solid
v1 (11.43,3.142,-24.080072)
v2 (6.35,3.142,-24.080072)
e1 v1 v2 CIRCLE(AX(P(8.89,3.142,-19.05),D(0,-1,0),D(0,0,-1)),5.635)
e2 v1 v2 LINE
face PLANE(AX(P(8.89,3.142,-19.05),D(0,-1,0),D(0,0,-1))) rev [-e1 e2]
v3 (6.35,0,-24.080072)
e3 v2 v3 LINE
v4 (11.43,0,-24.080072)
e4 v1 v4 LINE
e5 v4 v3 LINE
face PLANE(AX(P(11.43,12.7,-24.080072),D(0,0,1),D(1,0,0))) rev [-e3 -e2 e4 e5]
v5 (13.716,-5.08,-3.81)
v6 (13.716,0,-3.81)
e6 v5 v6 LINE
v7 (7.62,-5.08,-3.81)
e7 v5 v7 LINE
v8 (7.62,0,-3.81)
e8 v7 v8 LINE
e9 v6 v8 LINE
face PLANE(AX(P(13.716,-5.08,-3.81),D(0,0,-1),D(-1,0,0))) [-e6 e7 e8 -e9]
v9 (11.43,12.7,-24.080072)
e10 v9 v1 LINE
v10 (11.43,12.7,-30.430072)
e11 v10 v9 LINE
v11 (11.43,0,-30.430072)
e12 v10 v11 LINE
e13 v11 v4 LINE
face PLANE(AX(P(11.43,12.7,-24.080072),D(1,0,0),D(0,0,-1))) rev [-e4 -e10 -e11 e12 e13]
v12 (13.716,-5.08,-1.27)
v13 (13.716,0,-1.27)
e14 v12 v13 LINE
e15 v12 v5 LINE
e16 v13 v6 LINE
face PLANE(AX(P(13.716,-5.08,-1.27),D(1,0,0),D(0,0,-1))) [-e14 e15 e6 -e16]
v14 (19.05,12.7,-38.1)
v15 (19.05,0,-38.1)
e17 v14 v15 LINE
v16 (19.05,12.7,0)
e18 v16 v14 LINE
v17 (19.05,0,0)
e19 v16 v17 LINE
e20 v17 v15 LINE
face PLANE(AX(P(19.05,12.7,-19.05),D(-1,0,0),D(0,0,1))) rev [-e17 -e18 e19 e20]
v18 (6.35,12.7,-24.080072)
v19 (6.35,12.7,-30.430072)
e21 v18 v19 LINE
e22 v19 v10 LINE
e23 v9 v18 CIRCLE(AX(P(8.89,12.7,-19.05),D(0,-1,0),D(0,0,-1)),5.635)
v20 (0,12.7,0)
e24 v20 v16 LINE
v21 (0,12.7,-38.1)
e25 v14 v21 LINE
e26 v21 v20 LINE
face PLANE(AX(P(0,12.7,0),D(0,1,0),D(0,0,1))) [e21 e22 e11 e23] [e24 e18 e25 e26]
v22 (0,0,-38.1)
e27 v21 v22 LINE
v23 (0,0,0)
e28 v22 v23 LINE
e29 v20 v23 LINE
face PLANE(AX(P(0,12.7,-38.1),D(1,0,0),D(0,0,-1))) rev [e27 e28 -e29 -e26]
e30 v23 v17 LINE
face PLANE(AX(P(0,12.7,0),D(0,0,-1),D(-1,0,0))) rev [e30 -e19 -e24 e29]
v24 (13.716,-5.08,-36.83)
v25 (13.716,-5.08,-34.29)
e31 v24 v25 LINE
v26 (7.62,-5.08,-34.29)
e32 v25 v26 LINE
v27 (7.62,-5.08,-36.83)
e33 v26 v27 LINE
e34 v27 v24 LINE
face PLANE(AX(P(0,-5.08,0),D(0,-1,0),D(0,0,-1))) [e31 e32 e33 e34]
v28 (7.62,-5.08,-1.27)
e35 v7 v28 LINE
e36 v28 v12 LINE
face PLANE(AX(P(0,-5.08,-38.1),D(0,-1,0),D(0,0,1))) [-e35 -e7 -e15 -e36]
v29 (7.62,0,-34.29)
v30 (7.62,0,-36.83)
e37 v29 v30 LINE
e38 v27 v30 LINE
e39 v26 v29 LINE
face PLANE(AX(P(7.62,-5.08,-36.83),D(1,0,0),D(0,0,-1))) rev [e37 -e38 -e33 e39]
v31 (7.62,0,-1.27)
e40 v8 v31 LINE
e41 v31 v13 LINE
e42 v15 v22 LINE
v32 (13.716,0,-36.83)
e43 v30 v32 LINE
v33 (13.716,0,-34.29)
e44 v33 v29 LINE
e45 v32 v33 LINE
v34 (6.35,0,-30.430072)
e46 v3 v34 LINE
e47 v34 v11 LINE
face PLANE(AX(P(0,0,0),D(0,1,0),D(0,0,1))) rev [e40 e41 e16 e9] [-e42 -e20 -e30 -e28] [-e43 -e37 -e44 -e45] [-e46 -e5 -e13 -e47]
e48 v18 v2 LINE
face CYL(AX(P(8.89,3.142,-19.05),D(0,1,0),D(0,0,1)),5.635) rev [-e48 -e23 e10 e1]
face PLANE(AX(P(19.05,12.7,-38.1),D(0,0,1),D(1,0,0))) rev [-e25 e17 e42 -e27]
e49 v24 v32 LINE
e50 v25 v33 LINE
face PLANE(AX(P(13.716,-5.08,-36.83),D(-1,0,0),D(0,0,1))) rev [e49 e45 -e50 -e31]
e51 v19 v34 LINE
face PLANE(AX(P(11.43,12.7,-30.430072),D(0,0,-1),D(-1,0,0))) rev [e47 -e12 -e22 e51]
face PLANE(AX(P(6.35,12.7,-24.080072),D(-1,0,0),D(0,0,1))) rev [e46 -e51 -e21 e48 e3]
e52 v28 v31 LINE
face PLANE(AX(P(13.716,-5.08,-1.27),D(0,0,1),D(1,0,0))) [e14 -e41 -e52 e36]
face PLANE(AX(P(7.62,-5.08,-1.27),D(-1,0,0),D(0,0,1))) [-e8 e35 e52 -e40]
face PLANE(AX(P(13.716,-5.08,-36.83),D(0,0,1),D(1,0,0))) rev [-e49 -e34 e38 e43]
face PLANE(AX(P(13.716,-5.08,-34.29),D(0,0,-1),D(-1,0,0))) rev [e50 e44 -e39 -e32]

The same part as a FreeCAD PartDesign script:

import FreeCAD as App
import Part
import Sketcher
Q = App.Units.Quantity


def add_polygon(sketch, points):
    """Adds a closed chain of lines whose ends are joined by coincident constraints."""
    first, n = sketch.GeometryCount, len(points)
    for a, b in zip(points, points[1:] + points[:1]):
        sketch.addGeometry(Part.LineSegment(App.Vector(*a, 0), App.Vector(*b, 0)), False)
    for i in range(n):
        sketch.addConstraint(Sketcher.Constraint("Coincident", first + i, 2, first + (i + 1) % n, 1))

doc = App.newDocument("Part")
params = doc.addObject("Spreadsheet::Sheet", "Params")
for row, (alias, value) in enumerate([
    ("sketch1_height", "1.5 in"),
    ("sketch1_width", "0.75 in"),
    ("pad1_length", "0.5 in"),
    ("pocket1_length", "9.558 mm"),
    ("sketch3_width", "0.2 in"),
    ("sketch3_height", "0.25 in"),
    ("sketch4_height", "0.1 in"),
    ("sketch4_width", "0.24 in"),
    ("pad2_length", "0.2 in"),
], start=1):
    params.set(f"A{row}", alias)
    params.set(f"B{row}", "=" + value)
    params.setAlias(f"B{row}", alias)

body = doc.addObject("PartDesign::Body", "Body")

sketch1 = doc.addObject("Sketcher::SketchObject", "Sketch")
body.addObject(sketch1)
sketch1.AttachmentSupport = (doc.XZ_Plane, [""])
sketch1.MapMode = "FlatFace"
add_polygon(sketch1, [(0, 0), (19, 0), (19, -38), (0, -38)])
sketch1.addConstraint([
    Sketcher.Constraint("Horizontal", 0),
    Sketcher.Constraint("Vertical", 1),
    Sketcher.Constraint("Horizontal", 2),
    Sketcher.Constraint("Vertical", 3),
    Sketcher.Constraint("Coincident", 3, 2, -1, 1),
    Sketcher.Constraint("DistanceY", 1, 2, 1, 1, Q("1.5 in")),
    Sketcher.Constraint("DistanceX", 0, 1, 0, 2, Q("0.75 in")),
])
sketch1.setExpression("Constraints[9]", "Params.sketch1_height")
sketch1.setExpression("Constraints[10]", "Params.sketch1_width")
pad1 = doc.addObject("PartDesign::Pad", "Pad")
body.addObject(pad1)
pad1.Profile = sketch1
pad1.setExpression("Length", "Params.pad1_length")
pad1.Reversed = True

sketch2 = doc.addObject("Sketcher::SketchObject", "Sketch001")
body.addObject(sketch2)
sketch2.AttachmentSupport = (doc.XZ_Plane, [""])
sketch2.MapMode = "FlatFace"
sketch2.AttachmentOffset = App.Placement(App.Vector(0, 0, -0.5 * 25.4), App.Rotation())
sketch2.addGeometry(Part.Circle(App.Vector(9, -19, 0), App.Vector(0, 0, 1), 6), False)
sketch2.addConstraint([
    Sketcher.Constraint("Diameter", 0, Q("11.27 mm")),
    Sketcher.Constraint("DistanceX", -1, 1, 0, 3, Q("0.35 in")),
    Sketcher.Constraint("DistanceY", 0, 3, -1, 1, Q("0.75 in")),
])
pocket1 = doc.addObject("PartDesign::Pocket", "Pocket")
body.addObject(pocket1)
pocket1.Profile = sketch2
pocket1.setExpression("Length", "Params.pocket1_length")
pocket1.Reversed = True

sketch3 = doc.addObject("Sketcher::SketchObject", "Sketch002")
body.addObject(sketch3)
sketch3.AttachmentSupport = (doc.XZ_Plane, [""])
sketch3.MapMode = "FlatFace"
add_polygon(sketch3, [(6, -24), (6, -30), (11, -30), (11, -24)])
sketch3.addConstraint([
    Sketcher.Constraint("Vertical", 0),
    Sketcher.Constraint("Horizontal", 1),
    Sketcher.Constraint("Vertical", 2),
    Sketcher.Constraint("Horizontal", 3),
    Sketcher.Constraint("DistanceX", 1, 1, 1, 2, Q("0.2 in")),
    Sketcher.Constraint("DistanceY", 0, 2, 0, 1, Q("0.25 in")),
    Sketcher.Constraint("DistanceX", -1, 1, 0, 2, Q("0.25 in")),
    Sketcher.Constraint("DistanceY", 0, 2, -1, 1, Q("30.430072 mm")),
])
sketch3.setExpression("Constraints[8]", "Params.sketch3_width")
sketch3.setExpression("Constraints[9]", "Params.sketch3_height")
pocket2 = doc.addObject("PartDesign::Pocket", "Pocket001")
body.addObject(pocket2)
pocket2.Profile = sketch3
pocket2.Type = "ThroughAll"

sketch4 = doc.addObject("Sketcher::SketchObject", "Sketch003")
body.addObject(sketch4)
sketch4.AttachmentSupport = (doc.XZ_Plane, [""])
sketch4.MapMode = "FlatFace"
add_polygon(sketch4, [(7.6, -34.3), (7.6, -36.8), (13.7, -36.8), (13.7, -34.3)])
sketch4.addConstraint([
    Sketcher.Constraint("Vertical", 0),
    Sketcher.Constraint("Horizontal", 1),
    Sketcher.Constraint("Vertical", 2),
    Sketcher.Constraint("Horizontal", 3),
    Sketcher.Constraint("DistanceY", 0, 2, 0, 1, Q("0.1 in")),
    Sketcher.Constraint("DistanceX", 1, 1, 1, 2, Q("0.24 in")),
    Sketcher.Constraint("DistanceX", -1, 1, 0, 2, Q("0.3 in")),
    Sketcher.Constraint("DistanceY", 0, 2, -1, 1, Q("1.45 in")),
])
sketch4.setExpression("Constraints[8]", "Params.sketch4_height")
sketch4.setExpression("Constraints[9]", "Params.sketch4_width")
pad2 = doc.addObject("PartDesign::Pad", "Pad001")
body.addObject(pad2)
pad2.Profile = sketch4
pad2.setExpression("Length", "Params.pad2_length")
doc.recompute()

datumplane = doc.addObject("PartDesign::Plane", "DatumPlane")
body.addObject(datumplane)
datumplane.AttachmentSupport = (doc.XY_Plane, [""])
datumplane.MapMode = "FlatFace"
datumplane.AttachmentOffset = App.Placement(App.Vector(0, 0, -0.75 * 25.4), App.Rotation())
mirrored = doc.addObject("PartDesign::Mirrored", "Mirrored")
body.addObject(mirrored)
mirrored.Originals = [pad2]
mirrored.MirrorPlane = (datumplane, [""])
body.Tip = mirrored

doc.recompute()
